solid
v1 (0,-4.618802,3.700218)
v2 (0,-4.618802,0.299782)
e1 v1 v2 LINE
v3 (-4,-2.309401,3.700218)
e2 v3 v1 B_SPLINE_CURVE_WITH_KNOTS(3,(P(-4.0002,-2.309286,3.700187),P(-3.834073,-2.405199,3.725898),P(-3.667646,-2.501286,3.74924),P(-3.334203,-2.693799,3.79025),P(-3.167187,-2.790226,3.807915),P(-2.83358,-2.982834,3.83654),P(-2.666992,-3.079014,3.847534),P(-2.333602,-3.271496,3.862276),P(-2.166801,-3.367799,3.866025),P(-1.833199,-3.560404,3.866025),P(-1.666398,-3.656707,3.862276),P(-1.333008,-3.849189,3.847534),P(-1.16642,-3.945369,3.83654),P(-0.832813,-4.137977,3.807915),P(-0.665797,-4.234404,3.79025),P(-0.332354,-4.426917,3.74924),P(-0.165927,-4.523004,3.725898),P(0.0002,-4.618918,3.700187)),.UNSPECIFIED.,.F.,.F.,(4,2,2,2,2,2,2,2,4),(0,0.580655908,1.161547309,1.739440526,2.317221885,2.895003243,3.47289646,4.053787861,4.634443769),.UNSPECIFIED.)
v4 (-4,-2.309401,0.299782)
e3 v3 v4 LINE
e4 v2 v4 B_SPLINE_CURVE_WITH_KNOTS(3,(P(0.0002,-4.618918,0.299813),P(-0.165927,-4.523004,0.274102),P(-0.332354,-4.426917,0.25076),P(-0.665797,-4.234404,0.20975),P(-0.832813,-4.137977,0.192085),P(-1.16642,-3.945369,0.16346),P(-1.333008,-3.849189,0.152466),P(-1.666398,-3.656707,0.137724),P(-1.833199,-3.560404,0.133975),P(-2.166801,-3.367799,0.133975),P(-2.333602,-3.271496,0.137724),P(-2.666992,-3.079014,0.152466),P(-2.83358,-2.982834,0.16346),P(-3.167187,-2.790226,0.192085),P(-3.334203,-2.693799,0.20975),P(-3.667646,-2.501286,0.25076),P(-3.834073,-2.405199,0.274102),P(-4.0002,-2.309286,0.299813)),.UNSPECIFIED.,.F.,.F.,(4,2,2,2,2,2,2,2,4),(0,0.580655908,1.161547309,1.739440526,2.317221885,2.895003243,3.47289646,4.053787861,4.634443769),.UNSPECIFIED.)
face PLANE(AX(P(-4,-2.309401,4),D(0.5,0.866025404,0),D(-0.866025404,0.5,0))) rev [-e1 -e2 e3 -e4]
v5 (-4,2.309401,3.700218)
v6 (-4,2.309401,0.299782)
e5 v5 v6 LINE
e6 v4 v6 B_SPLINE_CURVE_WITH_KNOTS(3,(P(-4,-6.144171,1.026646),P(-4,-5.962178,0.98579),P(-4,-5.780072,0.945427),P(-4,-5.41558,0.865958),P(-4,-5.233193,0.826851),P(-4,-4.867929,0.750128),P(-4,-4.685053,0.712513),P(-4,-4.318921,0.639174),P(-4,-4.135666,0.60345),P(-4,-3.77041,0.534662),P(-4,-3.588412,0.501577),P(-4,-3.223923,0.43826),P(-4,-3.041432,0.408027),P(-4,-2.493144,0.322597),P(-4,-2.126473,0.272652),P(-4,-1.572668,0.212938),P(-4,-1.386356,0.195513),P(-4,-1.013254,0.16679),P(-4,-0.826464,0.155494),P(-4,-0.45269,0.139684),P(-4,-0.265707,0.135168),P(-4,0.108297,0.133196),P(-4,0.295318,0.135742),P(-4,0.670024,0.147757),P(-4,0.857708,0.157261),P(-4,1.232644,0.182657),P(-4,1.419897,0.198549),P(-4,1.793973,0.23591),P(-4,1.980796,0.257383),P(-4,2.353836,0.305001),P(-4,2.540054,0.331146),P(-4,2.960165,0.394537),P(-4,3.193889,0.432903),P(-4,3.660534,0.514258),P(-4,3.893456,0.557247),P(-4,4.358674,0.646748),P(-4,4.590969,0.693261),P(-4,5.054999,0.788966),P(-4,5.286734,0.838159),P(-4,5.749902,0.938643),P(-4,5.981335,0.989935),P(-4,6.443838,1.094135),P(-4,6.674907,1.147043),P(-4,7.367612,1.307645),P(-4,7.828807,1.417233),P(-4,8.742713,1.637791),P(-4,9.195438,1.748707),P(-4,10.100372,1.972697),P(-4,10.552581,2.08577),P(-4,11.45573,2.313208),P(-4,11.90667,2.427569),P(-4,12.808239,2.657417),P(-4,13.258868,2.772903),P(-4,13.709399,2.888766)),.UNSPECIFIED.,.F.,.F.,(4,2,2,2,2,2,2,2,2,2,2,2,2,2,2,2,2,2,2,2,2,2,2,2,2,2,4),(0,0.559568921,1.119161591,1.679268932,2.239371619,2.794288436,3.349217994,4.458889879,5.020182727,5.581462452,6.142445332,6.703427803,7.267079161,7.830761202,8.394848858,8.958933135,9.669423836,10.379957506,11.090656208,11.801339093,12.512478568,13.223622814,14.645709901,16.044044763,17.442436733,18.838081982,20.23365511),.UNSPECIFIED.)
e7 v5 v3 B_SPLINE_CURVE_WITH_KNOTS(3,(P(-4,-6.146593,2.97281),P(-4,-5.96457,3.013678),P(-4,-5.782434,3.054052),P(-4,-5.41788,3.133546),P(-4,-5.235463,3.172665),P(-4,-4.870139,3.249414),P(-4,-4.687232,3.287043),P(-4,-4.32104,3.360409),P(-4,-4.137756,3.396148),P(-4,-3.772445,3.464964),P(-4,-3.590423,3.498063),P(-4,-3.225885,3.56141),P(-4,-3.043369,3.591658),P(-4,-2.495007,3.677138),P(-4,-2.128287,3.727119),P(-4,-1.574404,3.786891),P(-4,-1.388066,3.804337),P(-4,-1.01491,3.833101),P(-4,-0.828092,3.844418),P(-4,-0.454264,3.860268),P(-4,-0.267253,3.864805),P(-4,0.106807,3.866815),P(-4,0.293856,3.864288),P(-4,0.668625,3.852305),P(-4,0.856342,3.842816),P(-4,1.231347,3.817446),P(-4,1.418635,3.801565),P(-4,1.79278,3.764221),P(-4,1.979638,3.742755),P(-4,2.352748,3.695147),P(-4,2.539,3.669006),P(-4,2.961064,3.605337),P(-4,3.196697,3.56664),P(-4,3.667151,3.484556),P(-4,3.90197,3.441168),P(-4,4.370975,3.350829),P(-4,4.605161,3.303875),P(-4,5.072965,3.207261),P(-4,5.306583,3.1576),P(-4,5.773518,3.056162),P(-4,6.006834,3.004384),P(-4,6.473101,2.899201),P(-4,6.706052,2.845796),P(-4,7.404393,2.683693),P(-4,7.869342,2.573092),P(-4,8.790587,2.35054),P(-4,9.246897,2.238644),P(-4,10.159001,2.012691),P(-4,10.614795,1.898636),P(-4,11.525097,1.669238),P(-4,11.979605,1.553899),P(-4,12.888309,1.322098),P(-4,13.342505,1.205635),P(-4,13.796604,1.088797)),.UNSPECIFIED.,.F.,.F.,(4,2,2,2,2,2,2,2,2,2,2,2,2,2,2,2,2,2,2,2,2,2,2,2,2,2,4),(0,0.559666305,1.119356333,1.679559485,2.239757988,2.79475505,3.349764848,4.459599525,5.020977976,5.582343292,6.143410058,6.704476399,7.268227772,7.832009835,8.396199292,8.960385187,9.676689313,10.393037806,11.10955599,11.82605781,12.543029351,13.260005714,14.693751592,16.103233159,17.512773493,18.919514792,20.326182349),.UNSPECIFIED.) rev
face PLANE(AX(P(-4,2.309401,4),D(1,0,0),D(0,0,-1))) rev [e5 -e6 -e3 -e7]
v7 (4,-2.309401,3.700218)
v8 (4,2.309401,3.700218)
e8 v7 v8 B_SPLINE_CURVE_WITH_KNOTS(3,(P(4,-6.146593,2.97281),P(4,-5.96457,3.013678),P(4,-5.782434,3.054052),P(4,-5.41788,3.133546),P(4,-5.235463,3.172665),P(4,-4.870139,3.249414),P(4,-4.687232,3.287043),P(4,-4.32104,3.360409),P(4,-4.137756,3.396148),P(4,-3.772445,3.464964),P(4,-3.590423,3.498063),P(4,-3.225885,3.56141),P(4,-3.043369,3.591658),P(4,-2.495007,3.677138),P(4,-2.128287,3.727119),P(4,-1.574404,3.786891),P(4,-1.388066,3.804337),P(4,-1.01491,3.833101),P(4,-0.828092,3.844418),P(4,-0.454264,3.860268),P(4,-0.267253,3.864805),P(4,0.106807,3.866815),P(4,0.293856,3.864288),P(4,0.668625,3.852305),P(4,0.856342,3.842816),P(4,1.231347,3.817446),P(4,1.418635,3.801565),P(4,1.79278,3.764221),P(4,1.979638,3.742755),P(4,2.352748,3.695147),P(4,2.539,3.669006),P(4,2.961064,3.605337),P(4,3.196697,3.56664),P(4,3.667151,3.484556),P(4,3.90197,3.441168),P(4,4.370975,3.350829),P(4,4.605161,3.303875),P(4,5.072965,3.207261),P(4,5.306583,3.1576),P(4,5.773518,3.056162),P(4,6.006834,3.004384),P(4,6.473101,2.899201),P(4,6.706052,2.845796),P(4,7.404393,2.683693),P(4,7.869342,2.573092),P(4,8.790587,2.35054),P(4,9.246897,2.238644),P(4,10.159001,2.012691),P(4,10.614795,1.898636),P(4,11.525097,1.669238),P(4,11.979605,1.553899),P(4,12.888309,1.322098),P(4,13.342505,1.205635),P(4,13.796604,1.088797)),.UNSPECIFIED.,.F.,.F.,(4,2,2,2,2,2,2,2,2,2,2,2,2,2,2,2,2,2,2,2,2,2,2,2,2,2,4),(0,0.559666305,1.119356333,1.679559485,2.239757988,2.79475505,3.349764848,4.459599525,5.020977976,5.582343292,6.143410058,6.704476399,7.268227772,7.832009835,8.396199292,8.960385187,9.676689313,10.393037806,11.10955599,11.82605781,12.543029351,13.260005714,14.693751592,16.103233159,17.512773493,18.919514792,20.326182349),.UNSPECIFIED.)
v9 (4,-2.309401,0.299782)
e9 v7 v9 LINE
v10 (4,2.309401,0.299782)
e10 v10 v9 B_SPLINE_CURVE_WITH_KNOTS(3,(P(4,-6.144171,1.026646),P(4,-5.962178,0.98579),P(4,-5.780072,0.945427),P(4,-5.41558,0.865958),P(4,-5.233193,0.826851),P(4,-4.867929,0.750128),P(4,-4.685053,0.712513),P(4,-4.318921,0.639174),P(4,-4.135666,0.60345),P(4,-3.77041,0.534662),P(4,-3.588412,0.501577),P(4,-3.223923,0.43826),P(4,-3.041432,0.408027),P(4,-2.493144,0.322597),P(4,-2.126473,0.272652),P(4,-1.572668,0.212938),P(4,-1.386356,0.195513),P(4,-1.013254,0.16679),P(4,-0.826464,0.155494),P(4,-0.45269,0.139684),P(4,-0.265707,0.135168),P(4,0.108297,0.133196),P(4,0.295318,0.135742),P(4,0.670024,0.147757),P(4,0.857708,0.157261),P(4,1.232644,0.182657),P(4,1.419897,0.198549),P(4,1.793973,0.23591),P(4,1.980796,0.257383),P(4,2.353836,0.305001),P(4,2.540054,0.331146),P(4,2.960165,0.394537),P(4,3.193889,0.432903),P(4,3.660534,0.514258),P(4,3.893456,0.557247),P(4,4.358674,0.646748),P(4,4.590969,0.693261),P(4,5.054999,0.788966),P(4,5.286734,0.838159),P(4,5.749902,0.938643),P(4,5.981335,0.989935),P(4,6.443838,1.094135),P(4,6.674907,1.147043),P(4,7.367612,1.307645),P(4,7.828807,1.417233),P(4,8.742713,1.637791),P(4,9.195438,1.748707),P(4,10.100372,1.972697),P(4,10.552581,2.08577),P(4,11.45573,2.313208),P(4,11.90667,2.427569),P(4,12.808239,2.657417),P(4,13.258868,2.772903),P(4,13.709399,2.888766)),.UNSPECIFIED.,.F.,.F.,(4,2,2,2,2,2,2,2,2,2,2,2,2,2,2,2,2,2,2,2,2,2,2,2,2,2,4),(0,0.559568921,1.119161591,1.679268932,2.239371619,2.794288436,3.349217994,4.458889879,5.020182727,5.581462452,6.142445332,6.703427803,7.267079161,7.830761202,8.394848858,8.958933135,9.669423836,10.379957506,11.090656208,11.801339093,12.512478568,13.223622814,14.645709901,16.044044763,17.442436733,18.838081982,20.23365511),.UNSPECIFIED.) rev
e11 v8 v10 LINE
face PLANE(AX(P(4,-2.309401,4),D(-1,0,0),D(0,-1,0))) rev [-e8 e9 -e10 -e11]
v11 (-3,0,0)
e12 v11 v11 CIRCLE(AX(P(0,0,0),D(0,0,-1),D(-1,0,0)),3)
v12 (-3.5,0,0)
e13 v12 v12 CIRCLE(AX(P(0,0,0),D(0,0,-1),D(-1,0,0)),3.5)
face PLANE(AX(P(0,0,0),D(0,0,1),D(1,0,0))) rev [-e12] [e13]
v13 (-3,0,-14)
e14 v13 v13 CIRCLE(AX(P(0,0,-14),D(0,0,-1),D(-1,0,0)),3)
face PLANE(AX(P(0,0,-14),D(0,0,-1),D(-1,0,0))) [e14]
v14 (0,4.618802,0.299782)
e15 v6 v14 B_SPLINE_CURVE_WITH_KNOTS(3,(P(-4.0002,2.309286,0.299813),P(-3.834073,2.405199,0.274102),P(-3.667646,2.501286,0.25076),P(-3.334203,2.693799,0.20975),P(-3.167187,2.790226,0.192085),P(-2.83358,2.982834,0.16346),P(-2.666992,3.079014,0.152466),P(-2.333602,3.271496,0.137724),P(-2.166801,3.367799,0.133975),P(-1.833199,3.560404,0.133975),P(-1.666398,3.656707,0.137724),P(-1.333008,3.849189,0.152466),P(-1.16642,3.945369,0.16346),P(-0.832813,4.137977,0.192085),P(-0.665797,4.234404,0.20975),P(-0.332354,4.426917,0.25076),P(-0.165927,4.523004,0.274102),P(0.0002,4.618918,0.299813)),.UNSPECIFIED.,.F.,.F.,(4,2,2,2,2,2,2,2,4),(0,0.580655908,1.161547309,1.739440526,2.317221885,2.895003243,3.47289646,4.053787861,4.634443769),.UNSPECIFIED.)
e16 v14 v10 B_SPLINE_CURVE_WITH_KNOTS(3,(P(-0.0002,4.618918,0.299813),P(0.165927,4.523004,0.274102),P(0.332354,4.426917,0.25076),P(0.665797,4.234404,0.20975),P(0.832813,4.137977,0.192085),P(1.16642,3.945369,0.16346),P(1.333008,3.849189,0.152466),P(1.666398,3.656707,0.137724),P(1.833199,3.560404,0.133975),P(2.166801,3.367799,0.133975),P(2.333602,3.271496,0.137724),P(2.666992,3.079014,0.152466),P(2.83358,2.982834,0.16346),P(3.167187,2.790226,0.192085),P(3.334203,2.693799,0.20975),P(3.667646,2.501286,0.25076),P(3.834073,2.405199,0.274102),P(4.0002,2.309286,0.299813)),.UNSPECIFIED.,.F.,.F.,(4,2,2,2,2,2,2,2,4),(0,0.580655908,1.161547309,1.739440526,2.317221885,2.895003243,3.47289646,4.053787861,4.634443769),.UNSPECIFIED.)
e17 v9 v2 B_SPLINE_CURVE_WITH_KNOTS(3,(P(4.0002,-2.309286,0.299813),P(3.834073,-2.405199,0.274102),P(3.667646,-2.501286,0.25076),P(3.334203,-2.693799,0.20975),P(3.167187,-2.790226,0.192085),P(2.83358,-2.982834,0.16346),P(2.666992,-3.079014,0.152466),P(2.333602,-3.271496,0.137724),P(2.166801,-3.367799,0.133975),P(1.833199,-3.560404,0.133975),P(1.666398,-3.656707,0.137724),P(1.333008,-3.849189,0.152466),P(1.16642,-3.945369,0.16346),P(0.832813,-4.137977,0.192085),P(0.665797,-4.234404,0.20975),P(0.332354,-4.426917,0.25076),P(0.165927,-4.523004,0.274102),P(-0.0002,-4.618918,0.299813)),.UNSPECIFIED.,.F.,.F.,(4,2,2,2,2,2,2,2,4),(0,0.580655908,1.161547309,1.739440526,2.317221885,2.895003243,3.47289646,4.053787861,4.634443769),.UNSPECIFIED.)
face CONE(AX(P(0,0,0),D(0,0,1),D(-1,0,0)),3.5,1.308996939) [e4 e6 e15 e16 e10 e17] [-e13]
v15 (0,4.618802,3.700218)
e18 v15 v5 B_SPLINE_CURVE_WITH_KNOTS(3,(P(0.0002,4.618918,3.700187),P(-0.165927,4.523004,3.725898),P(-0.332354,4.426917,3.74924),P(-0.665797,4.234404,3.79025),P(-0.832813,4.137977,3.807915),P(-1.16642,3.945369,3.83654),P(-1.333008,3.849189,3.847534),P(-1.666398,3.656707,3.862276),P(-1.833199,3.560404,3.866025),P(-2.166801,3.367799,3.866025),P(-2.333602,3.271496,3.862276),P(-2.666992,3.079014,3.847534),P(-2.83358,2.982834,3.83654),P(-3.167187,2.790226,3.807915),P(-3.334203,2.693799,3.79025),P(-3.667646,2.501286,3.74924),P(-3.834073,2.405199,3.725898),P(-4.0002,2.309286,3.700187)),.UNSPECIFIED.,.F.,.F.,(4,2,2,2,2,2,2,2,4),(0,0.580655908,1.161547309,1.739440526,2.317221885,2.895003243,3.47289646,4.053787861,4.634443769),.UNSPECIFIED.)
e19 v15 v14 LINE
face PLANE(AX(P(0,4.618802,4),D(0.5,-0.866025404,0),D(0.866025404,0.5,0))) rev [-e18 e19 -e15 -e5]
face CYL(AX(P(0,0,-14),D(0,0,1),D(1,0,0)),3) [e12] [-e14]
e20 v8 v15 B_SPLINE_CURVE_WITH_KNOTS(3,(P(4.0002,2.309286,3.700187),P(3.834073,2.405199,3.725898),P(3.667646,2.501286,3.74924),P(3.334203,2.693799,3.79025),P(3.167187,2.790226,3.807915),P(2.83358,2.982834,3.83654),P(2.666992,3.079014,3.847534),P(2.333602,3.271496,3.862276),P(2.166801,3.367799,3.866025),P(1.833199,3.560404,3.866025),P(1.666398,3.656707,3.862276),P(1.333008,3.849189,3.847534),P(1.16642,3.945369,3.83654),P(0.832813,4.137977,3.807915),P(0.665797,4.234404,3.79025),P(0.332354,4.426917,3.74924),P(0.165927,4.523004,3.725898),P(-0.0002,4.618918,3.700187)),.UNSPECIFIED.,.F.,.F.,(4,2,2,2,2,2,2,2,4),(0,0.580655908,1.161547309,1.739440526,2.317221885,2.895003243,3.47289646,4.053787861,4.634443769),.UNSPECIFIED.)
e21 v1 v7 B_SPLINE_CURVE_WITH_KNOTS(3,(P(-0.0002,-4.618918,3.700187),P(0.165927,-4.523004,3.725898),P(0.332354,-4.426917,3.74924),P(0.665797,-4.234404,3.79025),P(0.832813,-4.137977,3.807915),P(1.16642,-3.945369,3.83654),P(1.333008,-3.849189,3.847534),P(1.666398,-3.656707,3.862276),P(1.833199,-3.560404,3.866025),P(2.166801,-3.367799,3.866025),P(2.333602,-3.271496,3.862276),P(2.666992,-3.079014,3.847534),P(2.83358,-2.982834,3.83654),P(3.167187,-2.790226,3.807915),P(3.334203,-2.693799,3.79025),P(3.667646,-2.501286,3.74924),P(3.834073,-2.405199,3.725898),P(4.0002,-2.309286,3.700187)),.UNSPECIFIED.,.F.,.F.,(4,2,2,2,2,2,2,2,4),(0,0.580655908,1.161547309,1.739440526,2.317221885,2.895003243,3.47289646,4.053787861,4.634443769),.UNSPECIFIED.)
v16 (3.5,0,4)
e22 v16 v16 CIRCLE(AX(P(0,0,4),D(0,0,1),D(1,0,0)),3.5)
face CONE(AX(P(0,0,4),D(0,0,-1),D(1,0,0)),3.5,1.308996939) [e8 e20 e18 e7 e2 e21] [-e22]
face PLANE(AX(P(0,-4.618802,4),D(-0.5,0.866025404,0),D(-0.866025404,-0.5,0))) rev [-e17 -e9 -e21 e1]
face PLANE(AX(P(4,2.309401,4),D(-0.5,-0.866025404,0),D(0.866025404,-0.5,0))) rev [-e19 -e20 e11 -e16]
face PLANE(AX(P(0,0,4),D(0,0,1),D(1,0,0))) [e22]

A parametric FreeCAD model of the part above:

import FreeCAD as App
import Part
import Sketcher
from FreeCAD import Vector
Q = App.Units.Quantity


def faces_at(feature, points):
    """Names of the faces that lie closest to the given points."""
    faces = feature.Shape.Faces
    near = lambda p: min(range(len(faces)), key=lambda i: faces[i].distToShape(Part.Vertex(*p))[0])
    return sorted({f"Face{near(p) + 1}" for p in points})


def add_polygon(sketch, points):
    """Adds a closed chain of lines whose ends are joined by coincident constraints."""
    first, n = sketch.GeometryCount, len(points)
    for a, b in zip(points, points[1:] + points[:1]):
        sketch.addGeometry(Part.LineSegment(App.Vector(*a, 0), App.Vector(*b, 0)), False)
    for i in range(n):
        sketch.addConstraint(Sketcher.Constraint("Coincident", first + i, 2, first + (i + 1) % n, 1))

doc = App.newDocument("Part")
body = doc.addObject("PartDesign::Body", "Body")

sketch1 = body.newObject("Sketcher::SketchObject", "Sketch")
sketch1.AttachmentSupport = (doc.getObject("XY_Plane"), [""])
sketch1.MapMode = "FlatFace"
add_polygon(sketch1, [(0, -4.6), (4, -2.3), (4, 2.3), (0, 4.6), (-4, 2.3), (-4, -2.3)])
sketch1.addConstraint(Sketcher.Constraint("Vertical", 1))
sketch1.addConstraint(Sketcher.Constraint("Vertical", 4))
sketch1.addConstraint(Sketcher.Constraint("Symmetric", 0, 2, 3, 2, -1, 1))
sketch1.addConstraint(Sketcher.Constraint("Symmetric", 2, 2, 5, 2, -1, 1))
sketch1.addConstraint(Sketcher.Constraint("PointOnObject", 2, 2, -2))
sketch1.addConstraint(Sketcher.Constraint("Parallel", 2, 5))
sketch1.addConstraint(Sketcher.Constraint("Horizontal", 1, 2, 3, 2))
sketch1.addConstraint(Sketcher.Constraint("Angle", 0, Q("30 deg")))
sketch1.addConstraint(Sketcher.Constraint("DistanceX", -1, 1, 0, 2, 4.0))
sketch1.addConstraint(Sketcher.Constraint("DistanceY", 0, 2, -1, 1, 2.309401))
pad1 = body.newObject("PartDesign::Pad", "Pad")
pad1.Profile = sketch1
pad1.Length = 4
body2 = doc.addObject("PartDesign::Body", "Body001")

sketch2 = body2.newObject("Sketcher::SketchObject", "Sketch001")
sketch2.AttachmentSupport = (doc.getObject("XY_Plane001"), [""])
sketch2.MapMode = "FlatFace"
sketch2.AttachmentOffset = App.Placement(Vector(0, 0, 4), App.Rotation())
add_polygon(sketch2, [(-62.3, 62.9), (-62.3, -62.9), (62.3, -62.9), (62.3, 62.9)])
sketch2.addGeometry(Part.Circle(Vector(0, 0, 0), Vector(0, 0, 1), 3.5), False)
sketch2.addConstraint(Sketcher.Constraint("Vertical", 0))
sketch2.addConstraint(Sketcher.Constraint("Horizontal", 1))
sketch2.addConstraint(Sketcher.Constraint("Vertical", 2))
sketch2.addConstraint(Sketcher.Constraint("Horizontal", 3))
sketch2.addConstraint(Sketcher.Constraint("Coincident", 4, 3, -1, 1))
sketch2.addConstraint(Sketcher.Constraint("Symmetric", 0, 2, 2, 2, -1, 1))
sketch2.addConstraint(Sketcher.Constraint("Diameter", 4, 7.0))
sketch2.addConstraint(Sketcher.Constraint("DistanceX", 1, 1, 1, 2, 124.534))
sketch2.addConstraint(Sketcher.Constraint("DistanceY", 0, 2, 0, 1, 125.772))
pad2 = body2.newObject("PartDesign::Pad", "Pad001")
pad2.Profile = sketch2
pad2.Length = 15
pad2.Reversed = True
doc.recompute()

datumplane = body2.newObject("PartDesign::Plane", "DatumPlane")
datumplane.AttachmentSupport = (doc.getObject("XY_Plane001"), [""])
datumplane.MapMode = "FlatFace"
datumplane.AttachmentOffset = App.Placement(Vector(0, 0, 4), App.Rotation())
draft = body2.newObject("PartDesign::Draft", "Draft")
draft.Base = (pad2, faces_at(pad2, [
    (0, -62.886, -3.5),
    (62.267, 0, -3.5),
    (0, 62.886, -3.5),
    (-62.267, 0, -3.5),
    (-3.5, 0, -3.5),
]))
draft.NeutralPlane = (datumplane, [""])
draft.Angle = 75
draft.Reversed = True
doc.recompute()

boolean = body.newObject("PartDesign::Boolean", "Boolean")
boolean.Type = "Cut"
boolean.addObjects([body2])
body3 = doc.addObject("PartDesign::Body", "Body002")

sketch3 = body3.newObject("Sketcher::SketchObject", "Sketch002")
sketch3.AttachmentSupport = (doc.getObject("XY_Plane002"), [""])
sketch3.MapMode = "FlatFace"
add_polygon(sketch3, [(62.3, 62.9), (62.3, -62.9), (-62.3, -62.9), (-62.3, 62.9)])
sketch3.addGeometry(Part.Circle(Vector(0, 0, 0), Vector(0, 0, 1), 3.5), False)
sketch3.addConstraint(Sketcher.Constraint("Vertical", 0))
sketch3.addConstraint(Sketcher.Constraint("Horizontal", 1))
sketch3.addConstraint(Sketcher.Constraint("Vertical", 2))
sketch3.addConstraint(Sketcher.Constraint("Horizontal", 3))
sketch3.addConstraint(Sketcher.Constraint("Coincident", 4, 3, -1, 1))
sketch3.addConstraint(Sketcher.Constraint("Symmetric", 0, 2, 2, 2, -1, 1))
sketch3.addConstraint(Sketcher.Constraint("Diameter", 4, 7.0))
sketch3.addConstraint(Sketcher.Constraint("DistanceX", 1, 2, 1, 1, 124.534))
sketch3.addConstraint(Sketcher.Constraint("DistanceY", 0, 2, 0, 1, 125.772))
pad3 = body3.newObject("PartDesign::Pad", "Pad002")
pad3.Profile = sketch3
pad3.Length = 15
doc.recompute()

draft2 = body3.newObject("PartDesign::Draft", "Draft001")
draft2.Base = (pad3, faces_at(pad3, [
    (0, -62.886, 7.5),
    (-62.267, 0, 7.5),
    (0, 62.886, 7.5),
    (62.267, 0, 7.5),
    (3.5, 0, 7.5),
]))
draft2.NeutralPlane = (doc.getObject("XY_Plane002"), [""])
draft2.Angle = 75
draft2.Reversed = False
doc.recompute()

boolean2 = body.newObject("PartDesign::Boolean", "Boolean001")
boolean2.Type = "Cut"
boolean2.addObjects([body3])

sketch4 = body.newObject("Sketcher::SketchObject", "Sketch003")
sketch4.AttachmentSupport = (doc.getObject("XY_Plane"), [""])
sketch4.MapMode = "FlatFace"
sketch4.addGeometry(Part.Circle(Vector(0, 0, 0), Vector(0, 0, 1), 3), False)
sketch4.addConstraint(Sketcher.Constraint("Coincident", 0, 3, -1, 1))
sketch4.addConstraint(Sketcher.Constraint("Diameter", 0, 6.0))
pad4 = body.newObject("PartDesign::Pad", "Pad003")
pad4.Profile = sketch4
pad4.Length = 14
pad4.Reversed = True

doc.recompute()
